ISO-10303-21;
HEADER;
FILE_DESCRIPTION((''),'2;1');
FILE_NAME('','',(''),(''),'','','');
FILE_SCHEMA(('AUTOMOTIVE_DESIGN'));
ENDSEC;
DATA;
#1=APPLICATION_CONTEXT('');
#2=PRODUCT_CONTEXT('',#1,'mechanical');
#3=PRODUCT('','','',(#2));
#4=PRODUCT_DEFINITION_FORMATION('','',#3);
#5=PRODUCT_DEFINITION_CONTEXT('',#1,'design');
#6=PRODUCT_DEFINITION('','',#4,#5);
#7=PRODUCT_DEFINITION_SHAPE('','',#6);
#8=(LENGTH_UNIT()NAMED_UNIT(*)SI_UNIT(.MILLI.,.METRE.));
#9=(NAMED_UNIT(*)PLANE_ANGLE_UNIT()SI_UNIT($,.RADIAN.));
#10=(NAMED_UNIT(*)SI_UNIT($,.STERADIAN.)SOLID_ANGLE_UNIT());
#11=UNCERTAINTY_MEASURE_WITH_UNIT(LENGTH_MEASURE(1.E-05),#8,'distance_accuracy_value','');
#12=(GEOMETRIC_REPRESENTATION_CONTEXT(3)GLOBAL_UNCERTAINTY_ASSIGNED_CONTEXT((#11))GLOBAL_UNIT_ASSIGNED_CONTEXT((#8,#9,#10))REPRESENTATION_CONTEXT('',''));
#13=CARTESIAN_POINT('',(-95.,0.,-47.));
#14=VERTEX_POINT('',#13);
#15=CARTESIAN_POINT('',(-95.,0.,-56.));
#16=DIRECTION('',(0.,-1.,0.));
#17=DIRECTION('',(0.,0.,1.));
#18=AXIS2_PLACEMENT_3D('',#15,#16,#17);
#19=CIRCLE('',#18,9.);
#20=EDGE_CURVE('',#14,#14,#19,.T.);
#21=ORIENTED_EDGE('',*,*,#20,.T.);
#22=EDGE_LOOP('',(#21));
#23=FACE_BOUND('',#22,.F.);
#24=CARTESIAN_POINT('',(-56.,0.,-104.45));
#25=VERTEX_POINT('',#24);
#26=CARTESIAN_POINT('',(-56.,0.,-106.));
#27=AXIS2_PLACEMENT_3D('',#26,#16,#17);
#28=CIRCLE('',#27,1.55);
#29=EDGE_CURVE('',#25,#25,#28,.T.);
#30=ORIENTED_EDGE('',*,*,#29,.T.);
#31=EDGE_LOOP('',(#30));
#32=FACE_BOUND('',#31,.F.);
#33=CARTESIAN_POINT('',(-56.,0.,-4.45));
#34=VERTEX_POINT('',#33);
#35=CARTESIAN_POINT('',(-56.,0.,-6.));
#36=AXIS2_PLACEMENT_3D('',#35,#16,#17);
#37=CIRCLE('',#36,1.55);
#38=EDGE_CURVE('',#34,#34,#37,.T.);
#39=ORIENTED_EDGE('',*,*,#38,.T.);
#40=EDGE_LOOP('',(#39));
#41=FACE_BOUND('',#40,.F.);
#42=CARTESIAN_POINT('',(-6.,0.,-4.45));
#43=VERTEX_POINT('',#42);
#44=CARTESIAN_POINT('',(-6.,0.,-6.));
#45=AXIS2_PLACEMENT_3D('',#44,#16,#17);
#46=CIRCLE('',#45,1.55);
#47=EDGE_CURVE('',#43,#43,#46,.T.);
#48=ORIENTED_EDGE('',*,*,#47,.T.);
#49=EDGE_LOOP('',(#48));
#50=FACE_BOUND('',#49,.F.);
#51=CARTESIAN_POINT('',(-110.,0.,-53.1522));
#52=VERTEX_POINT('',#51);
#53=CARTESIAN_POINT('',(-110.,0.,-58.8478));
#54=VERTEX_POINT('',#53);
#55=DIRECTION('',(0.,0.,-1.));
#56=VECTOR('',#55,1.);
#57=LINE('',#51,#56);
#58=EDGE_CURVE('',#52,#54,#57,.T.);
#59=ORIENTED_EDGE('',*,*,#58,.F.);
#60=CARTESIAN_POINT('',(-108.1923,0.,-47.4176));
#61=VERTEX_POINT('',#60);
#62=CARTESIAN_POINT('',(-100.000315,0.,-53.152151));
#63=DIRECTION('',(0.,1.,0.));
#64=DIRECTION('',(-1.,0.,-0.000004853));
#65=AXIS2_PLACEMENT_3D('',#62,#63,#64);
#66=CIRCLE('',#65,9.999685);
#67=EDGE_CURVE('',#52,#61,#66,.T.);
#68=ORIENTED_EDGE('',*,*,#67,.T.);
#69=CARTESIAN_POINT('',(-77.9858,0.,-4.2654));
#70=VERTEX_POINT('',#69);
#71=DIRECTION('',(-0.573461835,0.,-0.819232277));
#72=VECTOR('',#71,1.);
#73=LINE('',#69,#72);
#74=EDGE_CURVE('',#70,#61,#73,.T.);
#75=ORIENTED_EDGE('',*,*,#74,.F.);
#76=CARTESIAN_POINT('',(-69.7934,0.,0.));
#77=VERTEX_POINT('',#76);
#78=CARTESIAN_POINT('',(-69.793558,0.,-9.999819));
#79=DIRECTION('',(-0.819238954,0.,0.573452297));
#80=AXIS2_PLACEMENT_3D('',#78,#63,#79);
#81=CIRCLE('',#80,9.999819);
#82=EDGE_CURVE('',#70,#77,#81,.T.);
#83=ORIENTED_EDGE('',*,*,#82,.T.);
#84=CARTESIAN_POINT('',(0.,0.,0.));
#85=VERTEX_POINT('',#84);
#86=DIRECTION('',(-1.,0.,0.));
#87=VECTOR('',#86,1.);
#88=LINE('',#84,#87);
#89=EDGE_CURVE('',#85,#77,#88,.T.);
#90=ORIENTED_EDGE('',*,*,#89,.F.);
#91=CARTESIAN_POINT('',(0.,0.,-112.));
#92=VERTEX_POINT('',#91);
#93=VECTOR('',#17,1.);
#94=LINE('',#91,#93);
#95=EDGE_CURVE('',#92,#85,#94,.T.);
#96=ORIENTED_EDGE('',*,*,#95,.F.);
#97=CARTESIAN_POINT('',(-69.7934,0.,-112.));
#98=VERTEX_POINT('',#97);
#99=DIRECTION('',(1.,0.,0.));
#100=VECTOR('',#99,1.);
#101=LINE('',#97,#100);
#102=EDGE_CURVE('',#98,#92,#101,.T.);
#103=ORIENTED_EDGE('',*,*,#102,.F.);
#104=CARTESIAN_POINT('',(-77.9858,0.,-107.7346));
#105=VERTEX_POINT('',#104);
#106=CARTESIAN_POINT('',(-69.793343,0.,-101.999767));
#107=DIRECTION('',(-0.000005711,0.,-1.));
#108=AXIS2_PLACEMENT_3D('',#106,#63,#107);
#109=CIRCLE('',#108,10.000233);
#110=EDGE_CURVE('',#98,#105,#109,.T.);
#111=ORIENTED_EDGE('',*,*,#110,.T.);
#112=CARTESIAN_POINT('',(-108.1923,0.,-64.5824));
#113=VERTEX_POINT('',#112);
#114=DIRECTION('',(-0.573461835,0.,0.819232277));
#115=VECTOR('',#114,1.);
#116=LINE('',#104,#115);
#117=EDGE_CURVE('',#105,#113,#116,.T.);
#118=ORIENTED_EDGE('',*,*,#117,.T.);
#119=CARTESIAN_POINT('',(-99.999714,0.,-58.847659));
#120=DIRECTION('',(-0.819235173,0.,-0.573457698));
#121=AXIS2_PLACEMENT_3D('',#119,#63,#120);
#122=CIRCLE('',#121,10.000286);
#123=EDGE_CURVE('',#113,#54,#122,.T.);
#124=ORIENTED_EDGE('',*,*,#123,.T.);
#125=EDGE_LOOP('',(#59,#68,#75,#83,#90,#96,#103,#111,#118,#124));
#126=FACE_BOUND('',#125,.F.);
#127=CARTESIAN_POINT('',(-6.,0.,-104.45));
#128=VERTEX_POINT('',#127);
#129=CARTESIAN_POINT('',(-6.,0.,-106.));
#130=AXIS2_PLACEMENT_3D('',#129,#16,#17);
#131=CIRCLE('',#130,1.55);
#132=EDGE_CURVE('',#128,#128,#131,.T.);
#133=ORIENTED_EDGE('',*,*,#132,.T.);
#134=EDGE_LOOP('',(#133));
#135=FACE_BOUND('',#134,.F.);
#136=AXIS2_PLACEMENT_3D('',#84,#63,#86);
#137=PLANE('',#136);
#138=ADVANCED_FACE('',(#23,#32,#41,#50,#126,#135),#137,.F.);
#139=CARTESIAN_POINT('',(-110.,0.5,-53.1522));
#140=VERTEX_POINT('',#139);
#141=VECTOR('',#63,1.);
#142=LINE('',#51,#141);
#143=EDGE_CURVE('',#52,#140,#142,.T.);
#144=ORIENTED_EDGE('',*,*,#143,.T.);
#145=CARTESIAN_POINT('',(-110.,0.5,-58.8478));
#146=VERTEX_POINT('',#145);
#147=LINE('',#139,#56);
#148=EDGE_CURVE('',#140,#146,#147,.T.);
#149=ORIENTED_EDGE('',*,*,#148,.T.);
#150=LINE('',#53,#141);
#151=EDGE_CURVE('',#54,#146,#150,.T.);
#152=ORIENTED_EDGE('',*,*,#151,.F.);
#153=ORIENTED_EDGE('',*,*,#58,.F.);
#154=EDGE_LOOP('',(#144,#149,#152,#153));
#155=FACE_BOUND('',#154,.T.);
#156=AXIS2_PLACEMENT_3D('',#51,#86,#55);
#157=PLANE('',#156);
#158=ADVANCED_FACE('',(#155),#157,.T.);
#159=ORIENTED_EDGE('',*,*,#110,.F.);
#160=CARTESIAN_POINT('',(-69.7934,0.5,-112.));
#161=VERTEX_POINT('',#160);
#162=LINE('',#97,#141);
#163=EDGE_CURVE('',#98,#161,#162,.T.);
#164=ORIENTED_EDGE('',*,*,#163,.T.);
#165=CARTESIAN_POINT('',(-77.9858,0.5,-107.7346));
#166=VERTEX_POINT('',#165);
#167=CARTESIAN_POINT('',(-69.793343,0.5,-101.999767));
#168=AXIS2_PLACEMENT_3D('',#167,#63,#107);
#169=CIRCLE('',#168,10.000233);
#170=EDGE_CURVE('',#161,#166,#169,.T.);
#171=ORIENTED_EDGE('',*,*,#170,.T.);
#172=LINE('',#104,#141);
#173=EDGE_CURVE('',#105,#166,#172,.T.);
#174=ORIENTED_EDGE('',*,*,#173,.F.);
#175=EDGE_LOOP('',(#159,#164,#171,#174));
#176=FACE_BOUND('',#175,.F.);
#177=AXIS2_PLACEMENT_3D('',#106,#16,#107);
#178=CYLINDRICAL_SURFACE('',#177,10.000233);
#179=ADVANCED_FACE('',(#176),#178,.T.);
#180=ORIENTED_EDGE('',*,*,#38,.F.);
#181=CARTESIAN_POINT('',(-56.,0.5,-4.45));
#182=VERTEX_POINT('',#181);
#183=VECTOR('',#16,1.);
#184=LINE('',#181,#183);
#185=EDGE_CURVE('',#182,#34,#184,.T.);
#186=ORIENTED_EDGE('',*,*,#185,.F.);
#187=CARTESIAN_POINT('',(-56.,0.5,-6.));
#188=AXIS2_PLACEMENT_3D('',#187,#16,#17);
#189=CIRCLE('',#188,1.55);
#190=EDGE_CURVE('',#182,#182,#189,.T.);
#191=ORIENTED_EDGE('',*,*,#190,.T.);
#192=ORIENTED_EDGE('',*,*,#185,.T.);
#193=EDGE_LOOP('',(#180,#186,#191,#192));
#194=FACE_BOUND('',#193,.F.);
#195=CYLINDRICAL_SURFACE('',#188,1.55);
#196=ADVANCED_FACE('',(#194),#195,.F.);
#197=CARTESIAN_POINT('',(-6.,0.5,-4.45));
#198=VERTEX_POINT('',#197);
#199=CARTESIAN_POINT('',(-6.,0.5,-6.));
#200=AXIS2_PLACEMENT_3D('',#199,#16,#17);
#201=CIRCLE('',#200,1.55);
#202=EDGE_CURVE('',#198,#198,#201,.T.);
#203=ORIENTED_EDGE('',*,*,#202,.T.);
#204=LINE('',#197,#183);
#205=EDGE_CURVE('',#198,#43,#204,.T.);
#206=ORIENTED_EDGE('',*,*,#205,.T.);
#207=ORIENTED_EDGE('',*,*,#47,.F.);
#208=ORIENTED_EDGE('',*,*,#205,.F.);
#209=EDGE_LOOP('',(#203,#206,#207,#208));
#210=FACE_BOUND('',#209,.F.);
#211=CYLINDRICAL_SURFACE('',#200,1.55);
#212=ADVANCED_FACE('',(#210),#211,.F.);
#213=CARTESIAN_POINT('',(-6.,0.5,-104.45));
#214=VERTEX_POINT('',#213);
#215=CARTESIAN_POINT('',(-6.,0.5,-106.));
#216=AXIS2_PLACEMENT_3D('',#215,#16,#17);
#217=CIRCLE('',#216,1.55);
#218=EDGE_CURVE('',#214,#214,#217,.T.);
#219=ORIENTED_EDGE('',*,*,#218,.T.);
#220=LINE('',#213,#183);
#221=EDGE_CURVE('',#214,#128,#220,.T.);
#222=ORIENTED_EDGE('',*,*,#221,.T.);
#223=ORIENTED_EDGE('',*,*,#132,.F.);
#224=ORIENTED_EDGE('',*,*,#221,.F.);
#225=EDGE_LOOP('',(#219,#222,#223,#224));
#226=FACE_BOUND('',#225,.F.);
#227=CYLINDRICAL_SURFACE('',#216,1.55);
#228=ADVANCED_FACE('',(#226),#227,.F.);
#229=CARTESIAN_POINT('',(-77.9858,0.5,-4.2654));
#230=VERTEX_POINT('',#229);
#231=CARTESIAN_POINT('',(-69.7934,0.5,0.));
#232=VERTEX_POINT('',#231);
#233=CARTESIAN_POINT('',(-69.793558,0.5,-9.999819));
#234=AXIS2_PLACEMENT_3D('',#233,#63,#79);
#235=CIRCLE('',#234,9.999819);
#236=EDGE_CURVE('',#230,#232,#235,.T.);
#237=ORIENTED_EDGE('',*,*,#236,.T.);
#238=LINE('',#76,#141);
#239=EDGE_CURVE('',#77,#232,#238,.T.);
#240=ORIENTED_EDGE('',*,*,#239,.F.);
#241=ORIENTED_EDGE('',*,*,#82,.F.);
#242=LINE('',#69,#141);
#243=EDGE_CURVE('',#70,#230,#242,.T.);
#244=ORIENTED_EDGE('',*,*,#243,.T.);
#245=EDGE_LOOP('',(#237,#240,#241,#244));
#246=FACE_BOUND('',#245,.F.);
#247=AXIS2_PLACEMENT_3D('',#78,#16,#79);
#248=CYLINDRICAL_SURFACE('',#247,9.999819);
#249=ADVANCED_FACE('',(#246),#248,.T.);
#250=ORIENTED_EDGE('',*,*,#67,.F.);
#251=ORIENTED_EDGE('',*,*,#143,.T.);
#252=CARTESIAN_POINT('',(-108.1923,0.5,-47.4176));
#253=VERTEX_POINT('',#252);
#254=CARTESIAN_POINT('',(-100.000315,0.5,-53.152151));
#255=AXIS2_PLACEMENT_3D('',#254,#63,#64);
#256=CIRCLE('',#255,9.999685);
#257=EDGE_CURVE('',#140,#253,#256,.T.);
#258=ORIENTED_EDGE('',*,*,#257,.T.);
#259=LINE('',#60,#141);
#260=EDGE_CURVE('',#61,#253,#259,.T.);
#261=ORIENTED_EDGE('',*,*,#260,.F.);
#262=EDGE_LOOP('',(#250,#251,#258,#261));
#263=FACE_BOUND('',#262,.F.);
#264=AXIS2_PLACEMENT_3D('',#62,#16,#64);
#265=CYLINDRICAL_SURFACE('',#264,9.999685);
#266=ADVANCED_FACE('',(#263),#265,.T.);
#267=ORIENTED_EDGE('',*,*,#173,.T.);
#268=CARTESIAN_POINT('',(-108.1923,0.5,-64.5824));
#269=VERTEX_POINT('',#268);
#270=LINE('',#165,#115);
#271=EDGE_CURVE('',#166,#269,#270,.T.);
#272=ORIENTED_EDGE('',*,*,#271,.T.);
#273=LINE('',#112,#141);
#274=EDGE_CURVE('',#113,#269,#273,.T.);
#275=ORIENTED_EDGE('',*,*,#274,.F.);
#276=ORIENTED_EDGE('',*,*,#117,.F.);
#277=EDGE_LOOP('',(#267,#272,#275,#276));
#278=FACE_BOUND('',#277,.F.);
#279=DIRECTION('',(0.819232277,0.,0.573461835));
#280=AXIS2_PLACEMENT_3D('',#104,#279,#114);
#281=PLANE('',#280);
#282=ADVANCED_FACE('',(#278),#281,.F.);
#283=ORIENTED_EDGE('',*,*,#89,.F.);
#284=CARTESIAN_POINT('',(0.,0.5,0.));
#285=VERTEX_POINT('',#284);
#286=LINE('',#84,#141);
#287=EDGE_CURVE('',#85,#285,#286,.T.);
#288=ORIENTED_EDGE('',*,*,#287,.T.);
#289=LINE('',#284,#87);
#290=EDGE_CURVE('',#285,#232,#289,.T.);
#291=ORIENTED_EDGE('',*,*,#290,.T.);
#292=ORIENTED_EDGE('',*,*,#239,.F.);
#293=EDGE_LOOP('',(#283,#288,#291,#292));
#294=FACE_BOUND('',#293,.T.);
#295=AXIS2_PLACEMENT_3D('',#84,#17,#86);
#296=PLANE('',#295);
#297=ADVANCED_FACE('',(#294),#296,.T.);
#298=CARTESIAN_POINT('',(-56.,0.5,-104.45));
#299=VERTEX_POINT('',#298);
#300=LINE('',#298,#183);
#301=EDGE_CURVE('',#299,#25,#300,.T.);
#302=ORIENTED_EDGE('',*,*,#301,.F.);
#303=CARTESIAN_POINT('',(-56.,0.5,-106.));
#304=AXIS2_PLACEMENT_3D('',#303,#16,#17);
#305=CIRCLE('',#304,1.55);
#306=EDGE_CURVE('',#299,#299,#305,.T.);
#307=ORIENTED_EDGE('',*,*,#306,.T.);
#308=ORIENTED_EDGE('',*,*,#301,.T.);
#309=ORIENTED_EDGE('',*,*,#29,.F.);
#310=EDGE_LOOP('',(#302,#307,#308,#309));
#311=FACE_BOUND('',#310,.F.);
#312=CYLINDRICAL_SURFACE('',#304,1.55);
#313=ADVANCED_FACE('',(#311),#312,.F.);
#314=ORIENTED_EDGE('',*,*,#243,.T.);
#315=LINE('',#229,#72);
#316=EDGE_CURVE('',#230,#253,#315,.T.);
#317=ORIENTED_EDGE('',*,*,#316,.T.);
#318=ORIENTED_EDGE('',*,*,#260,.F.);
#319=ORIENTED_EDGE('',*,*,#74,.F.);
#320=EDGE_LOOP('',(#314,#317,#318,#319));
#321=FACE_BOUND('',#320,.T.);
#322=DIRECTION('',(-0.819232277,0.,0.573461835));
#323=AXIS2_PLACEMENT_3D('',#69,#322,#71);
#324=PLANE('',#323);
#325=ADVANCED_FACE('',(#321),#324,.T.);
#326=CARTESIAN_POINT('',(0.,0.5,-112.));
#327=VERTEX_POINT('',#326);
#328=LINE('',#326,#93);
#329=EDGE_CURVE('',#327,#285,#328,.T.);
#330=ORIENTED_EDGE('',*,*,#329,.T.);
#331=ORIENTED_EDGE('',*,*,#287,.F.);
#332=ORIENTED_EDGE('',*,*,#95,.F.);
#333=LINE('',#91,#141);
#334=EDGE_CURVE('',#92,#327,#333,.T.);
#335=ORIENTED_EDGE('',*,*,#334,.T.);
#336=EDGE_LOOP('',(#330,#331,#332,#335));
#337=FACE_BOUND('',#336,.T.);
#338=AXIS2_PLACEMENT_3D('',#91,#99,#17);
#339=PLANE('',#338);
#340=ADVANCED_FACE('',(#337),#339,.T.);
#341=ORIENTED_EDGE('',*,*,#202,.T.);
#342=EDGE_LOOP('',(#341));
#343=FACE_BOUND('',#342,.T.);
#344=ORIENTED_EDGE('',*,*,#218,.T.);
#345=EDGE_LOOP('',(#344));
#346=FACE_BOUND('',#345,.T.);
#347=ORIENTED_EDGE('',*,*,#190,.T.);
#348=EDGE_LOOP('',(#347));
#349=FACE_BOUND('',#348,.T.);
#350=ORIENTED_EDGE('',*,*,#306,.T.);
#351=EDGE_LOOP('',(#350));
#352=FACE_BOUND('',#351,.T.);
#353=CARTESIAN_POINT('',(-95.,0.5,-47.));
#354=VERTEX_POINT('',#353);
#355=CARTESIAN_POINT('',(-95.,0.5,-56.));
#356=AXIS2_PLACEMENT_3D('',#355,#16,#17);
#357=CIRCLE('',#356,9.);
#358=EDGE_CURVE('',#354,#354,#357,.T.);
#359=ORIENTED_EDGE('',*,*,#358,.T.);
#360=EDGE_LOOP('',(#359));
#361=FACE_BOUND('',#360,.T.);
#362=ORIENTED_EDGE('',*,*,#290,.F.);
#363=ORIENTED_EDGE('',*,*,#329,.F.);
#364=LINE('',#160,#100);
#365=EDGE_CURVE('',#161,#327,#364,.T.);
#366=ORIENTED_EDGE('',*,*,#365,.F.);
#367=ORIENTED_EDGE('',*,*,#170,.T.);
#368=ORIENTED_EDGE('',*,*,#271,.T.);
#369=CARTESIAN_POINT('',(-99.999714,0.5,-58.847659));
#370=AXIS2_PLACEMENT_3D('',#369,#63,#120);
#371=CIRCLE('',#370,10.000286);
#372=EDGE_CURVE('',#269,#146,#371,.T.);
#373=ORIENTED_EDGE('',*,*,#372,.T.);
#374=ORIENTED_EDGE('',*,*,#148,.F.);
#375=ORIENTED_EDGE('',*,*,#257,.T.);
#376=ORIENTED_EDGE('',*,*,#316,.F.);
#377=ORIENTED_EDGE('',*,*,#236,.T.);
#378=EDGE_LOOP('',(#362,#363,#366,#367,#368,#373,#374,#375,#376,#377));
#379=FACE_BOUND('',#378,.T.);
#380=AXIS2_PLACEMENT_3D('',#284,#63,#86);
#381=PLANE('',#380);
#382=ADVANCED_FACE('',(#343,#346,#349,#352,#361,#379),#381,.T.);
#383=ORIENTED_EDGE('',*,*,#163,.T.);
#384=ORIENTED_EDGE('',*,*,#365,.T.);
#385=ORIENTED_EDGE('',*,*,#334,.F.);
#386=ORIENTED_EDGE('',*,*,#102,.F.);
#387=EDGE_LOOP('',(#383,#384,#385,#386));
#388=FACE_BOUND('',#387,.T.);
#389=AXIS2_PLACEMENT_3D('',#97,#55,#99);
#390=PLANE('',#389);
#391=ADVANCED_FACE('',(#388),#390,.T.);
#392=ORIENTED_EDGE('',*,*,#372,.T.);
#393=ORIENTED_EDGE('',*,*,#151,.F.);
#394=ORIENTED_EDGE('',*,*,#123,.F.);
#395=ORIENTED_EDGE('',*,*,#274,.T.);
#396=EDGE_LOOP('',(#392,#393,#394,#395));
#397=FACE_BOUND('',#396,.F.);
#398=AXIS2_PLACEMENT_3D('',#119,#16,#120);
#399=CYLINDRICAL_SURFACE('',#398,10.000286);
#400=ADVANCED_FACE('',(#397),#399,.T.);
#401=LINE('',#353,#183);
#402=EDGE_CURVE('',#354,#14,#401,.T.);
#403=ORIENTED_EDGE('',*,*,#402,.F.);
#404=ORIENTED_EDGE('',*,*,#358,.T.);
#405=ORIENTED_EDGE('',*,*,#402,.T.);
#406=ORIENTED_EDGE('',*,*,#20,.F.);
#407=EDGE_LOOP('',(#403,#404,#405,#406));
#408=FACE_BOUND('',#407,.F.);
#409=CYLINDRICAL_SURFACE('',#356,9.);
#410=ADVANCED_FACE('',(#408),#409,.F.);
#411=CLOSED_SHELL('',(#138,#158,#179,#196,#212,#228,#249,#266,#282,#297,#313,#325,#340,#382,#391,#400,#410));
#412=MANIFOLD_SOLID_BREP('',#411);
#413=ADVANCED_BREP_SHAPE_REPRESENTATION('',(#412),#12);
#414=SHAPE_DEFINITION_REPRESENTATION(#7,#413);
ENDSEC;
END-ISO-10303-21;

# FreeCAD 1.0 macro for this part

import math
import FreeCAD as App
import Part
import Sketcher
from FreeCAD import Vector

doc = App.newDocument("Part")
body = doc.addObject("PartDesign::Body", "Body")

# Sketch on XZ plane
sketch1 = body.newObject("Sketcher::SketchObject", "Sketch")
sketch1.AttachmentSupport = (doc.getObject("XZ_Plane"), [""])
sketch1.MapMode = "FlatFace"
sketch1.addGeometry(Part.LineSegment(Vector(-69.7934, 0, 0), Vector(0, 0, 0)), False)
sketch1.addGeometry(Part.LineSegment(Vector(0, 0, 0), Vector(0, -112, 0)), False)
sketch1.addGeometry(Part.LineSegment(Vector(0, -112, 0), Vector(-69.7934, -112, 0)), False)
sketch1.addGeometry(Part.ArcOfCircle(Part.Circle(Vector(-69.7934, -102, 0), Vector(0, 0, 1), 10), math.radians(-145.008355), math.radians(-90)), False)
sketch1.addGeometry(Part.LineSegment(Vector(-77.9858, -107.7346, 0), Vector(-108.1923, -64.5824, 0)), False)
sketch1.addGeometry(Part.ArcOfCircle(Part.Circle(Vector(-100, -58.8478, 0), Vector(0, 0, 1), 9.999971), math.radians(180), math.radians(214.991973)), False)
sketch1.addGeometry(Part.LineSegment(Vector(-110, -58.8478, 0), Vector(-110, -53.1522, 0)), False)
sketch1.addGeometry(Part.ArcOfCircle(Part.Circle(Vector(-100, -53.1522, 0), Vector(0, 0, 1), 10), math.radians(145.008027), math.radians(180)), False)
sketch1.addGeometry(Part.LineSegment(Vector(-108.1923, -47.4176, 0), Vector(-77.9858, -4.2654, 0)), False)
sketch1.addGeometry(Part.ArcOfCircle(Part.Circle(Vector(-69.7934, -10, 0), Vector(0, 0, 1), 10.000053), math.radians(90), math.radians(145.008355)), False)
sketch1.addConstraint(Sketcher.Constraint("Coincident", 0, 2, 1, 1))
sketch1.addConstraint(Sketcher.Constraint("Coincident", 1, 2, 2, 1))
sketch1.addConstraint(Sketcher.Constraint("Tangent", 2, 2, 3, 2))
sketch1.addConstraint(Sketcher.Constraint("Tangent", 3, 1, 4, 1))
sketch1.addConstraint(Sketcher.Constraint("Tangent", 4, 2, 5, 2))
sketch1.addConstraint(Sketcher.Constraint("Tangent", 5, 1, 6, 1))
sketch1.addConstraint(Sketcher.Constraint("Tangent", 6, 2, 7, 2))
sketch1.addConstraint(Sketcher.Constraint("Tangent", 7, 1, 8, 1))
sketch1.addConstraint(Sketcher.Constraint("Tangent", 8, 2, 9, 2))
sketch1.addConstraint(Sketcher.Constraint("Tangent", 9, 1, 0, 1))
sketch1.addConstraint(Sketcher.Constraint("Horizontal", 0))
sketch1.addConstraint(Sketcher.Constraint("Vertical", 1))
sketch1.addConstraint(Sketcher.Constraint("Horizontal", 2))
sketch1.addConstraint(Sketcher.Constraint("Vertical", 6))
sketch1.addConstraint(Sketcher.Constraint("Coincident", 0, 2, -1, 1))
sketch1.addConstraint(Sketcher.Constraint("Equal", 3, 5))
sketch1.addConstraint(Sketcher.Constraint("Equal", 5, 7))
sketch1.addConstraint(Sketcher.Constraint("Equal", 7, 9))
sketch1.addConstraint(Sketcher.Constraint("Vertical", 3, 3, 9, 3))
sketch1.addConstraint(Sketcher.Constraint("Vertical", 4, 2, 7, 1))
sketch1.addConstraint(Sketcher.Constraint("Radius", 3, 10.0))
sketch1.addConstraint(Sketcher.Constraint("DistanceY", 1, 2, 1, 1, 112.0))
sketch1.addConstraint(Sketcher.Constraint("DistanceX", 5, 1, -1, 1, 110.0))
sketch1.addConstraint(Sketcher.Constraint("Distance", 4, 52.674))
sketch1.addConstraint(Sketcher.Constraint("DistanceX", 0, 1, 0, 2, 69.7934))
pad1 = body.newObject("PartDesign::Pad", "Pad")
pad1.Profile = sketch1
pad1.Length = 0.5
pad1.Reversed = True

# Sketch on XZ plane
sketch2 = body.newObject("Sketcher::SketchObject", "Sketch001")
sketch2.AttachmentSupport = (doc.getObject("XZ_Plane"), [""])
sketch2.MapMode = "FlatFace"
sketch2.AttachmentOffset = App.Placement(Vector(0, 0, -0.5), App.Rotation())
sketch2.addGeometry(Part.Circle(Vector(-56, -6, 0), Vector(0, 0, 1), 1.55), False)
sketch2.addGeometry(Part.Circle(Vector(-6, -6, 0), Vector(0, 0, 1), 1.55), False)
sketch2.addGeometry(Part.Circle(Vector(-6, -106, 0), Vector(0, 0, 1), 1.55), False)
sketch2.addGeometry(Part.Circle(Vector(-56, -106, 0), Vector(0, 0, 1), 1.55), False)
sketch2.addConstraint(Sketcher.Constraint("Equal", 0, 1))
sketch2.addConstraint(Sketcher.Constraint("Equal", 1, 2))
sketch2.addConstraint(Sketcher.Constraint("Equal", 2, 3))
sketch2.addConstraint(Sketcher.Constraint("Horizontal", 0, 3, 1, 3))
sketch2.addConstraint(Sketcher.Constraint("Horizontal", 2, 3, 3, 3))
sketch2.addConstraint(Sketcher.Constraint("Vertical", 1, 3, 2, 3))
sketch2.addConstraint(Sketcher.Constraint("Vertical", 0, 3, 3, 3))
sketch2.addConstraint(Sketcher.Constraint("Diameter", 0, 3.1))
sketch2.addConstraint(Sketcher.Constraint("DistanceX", 0, 3, -1, 1, 56.0))
sketch2.addConstraint(Sketcher.Constraint("DistanceY", 0, 3, -1, 1, 6.0))
sketch2.addConstraint(Sketcher.Constraint("DistanceX", 1, 3, -1, 1, 6.0))
sketch2.addConstraint(Sketcher.Constraint("DistanceY", 2, 3, -1, 1, 106.0))
doc.recompute()
hole = body.newObject("PartDesign::Hole", "Hole")
hole.Profile = sketch2
hole.ThreadType = "None"
hole.Diameter = 3.1
hole.DepthType = "ThroughAll"
hole.Reversed = True

# Sketch on XZ plane
sketch3 = body.newObject("Sketcher::SketchObject", "Sketch002")
sketch3.AttachmentSupport = (doc.getObject("XZ_Plane"), [""])
sketch3.MapMode = "FlatFace"
sketch3.AttachmentOffset = App.Placement(Vector(0, 0, -0.5), App.Rotation())
sketch3.addGeometry(Part.Circle(Vector(-95, -56, 0), Vector(0, 0, 1), 9), False)
sketch3.addConstraint(Sketcher.Constraint("Diameter", 0, 18.0))
sketch3.addConstraint(Sketcher.Constraint("DistanceX", 0, 3, -1, 1, 95.0))
sketch3.addConstraint(Sketcher.Constraint("DistanceY", 0, 3, -1, 1, 56.0))
doc.recompute()
hole2 = body.newObject("PartDesign::Hole", "Hole001")
hole2.Profile = sketch3
hole2.ThreadType = "None"
hole2.Diameter = 18
hole2.DepthType = "ThroughAll"
hole2.Reversed = True

doc.recompute()
